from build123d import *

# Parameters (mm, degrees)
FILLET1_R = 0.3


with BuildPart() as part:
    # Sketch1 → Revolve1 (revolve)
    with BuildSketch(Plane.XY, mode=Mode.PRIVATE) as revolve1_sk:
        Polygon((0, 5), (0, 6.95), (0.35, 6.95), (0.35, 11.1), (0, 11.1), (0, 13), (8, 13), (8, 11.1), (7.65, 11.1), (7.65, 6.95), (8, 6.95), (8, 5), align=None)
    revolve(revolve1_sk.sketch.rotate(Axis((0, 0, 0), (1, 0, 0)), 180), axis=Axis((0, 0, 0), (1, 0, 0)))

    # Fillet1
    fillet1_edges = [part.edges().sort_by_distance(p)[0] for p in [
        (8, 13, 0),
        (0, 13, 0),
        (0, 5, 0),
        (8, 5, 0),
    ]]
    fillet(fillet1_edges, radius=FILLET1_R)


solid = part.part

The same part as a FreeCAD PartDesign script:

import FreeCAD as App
import Part
import Sketcher
from FreeCAD import Vector


def edges_at(feature, points):
    """Names of the edges that pass closest to the given points."""
    edges = feature.Shape.Edges
    near = lambda p: min(range(len(edges)), key=lambda i: edges[i].distToShape(Part.Vertex(*p))[0])
    return sorted({f"Edge{near(p) + 1}" for p in points})


def add_polygon(sketch, points):
    """Adds a closed chain of lines whose ends are joined by coincident constraints."""
    first, n = sketch.GeometryCount, len(points)
    for a, b in zip(points, points[1:] + points[:1]):
        sketch.addGeometry(Part.LineSegment(App.Vector(*a, 0), App.Vector(*b, 0)), False)
    for i in range(n):
        sketch.addConstraint(Sketcher.Constraint("Coincident", first + i, 2, first + (i + 1) % n, 1))

doc = App.newDocument("Part")
body = doc.addObject("PartDesign::Body", "Body")

# Sketch on XY plane
sketch1 = body.newObject("Sketcher::SketchObject", "Sketch")
sketch1.AttachmentSupport = (doc.getObject("XY_Plane"), [""])
sketch1.MapMode = "FlatFace"
add_polygon(sketch1, [(0, 6.95), (0, 5), (8, 5), (8, 6.95), (7.65, 6.95), (7.65, 11.1), (8, 11.1), (8, 13), (0, 13), (0, 11.1), (0.35, 11.1), (0.35, 6.95)])  # lines 0-11
sketch1.addConstraint(Sketcher.Constraint("Vertical", 0))
sketch1.addConstraint(Sketcher.Constraint("Horizontal", 1))
sketch1.addConstraint(Sketcher.Constraint("Vertical", 2))
sketch1.addConstraint(Sketcher.Constraint("Horizontal", 3))
sketch1.addConstraint(Sketcher.Constraint("Vertical", 4))
sketch1.addConstraint(Sketcher.Constraint("Horizontal", 5))
sketch1.addConstraint(Sketcher.Constraint("Vertical", 6))
sketch1.addConstraint(Sketcher.Constraint("Horizontal", 7))
sketch1.addConstraint(Sketcher.Constraint("Vertical", 8))
sketch1.addConstraint(Sketcher.Constraint("Horizontal", 9))
sketch1.addConstraint(Sketcher.Constraint("Vertical", 10))
sketch1.addConstraint(Sketcher.Constraint("Horizontal", 11))
sketch1.addConstraint(Sketcher.Constraint("PointOnObject", 0, 2, -2))
sketch1.addConstraint(Sketcher.Constraint("PointOnObject", 7, 2, -2))
sketch1.addConstraint(Sketcher.Constraint("Horizontal", 5, 2, 8, 2))
sketch1.addConstraint(Sketcher.Constraint("Horizontal", 3, 2, 10, 2))
sketch1.addConstraint(Sketcher.Constraint("Vertical", 2, 2, 5, 2))
sketch1.addConstraint(Sketcher.Constraint("Equal", 5, 9))
sketch1.addConstraint(Sketcher.Constraint("DistanceX", 1, 1, 1, 2, 8.0))
sketch1.addConstraint(Sketcher.Constraint("DistanceY", 6, 1, 6, 2, 1.9))
sketch1.addConstraint(Sketcher.Constraint("DistanceY", -1, 1, 0, 2, 5.0))
sketch1.addConstraint(Sketcher.Constraint("DistanceY", -1, 1, 6, 2, 13.0))
sketch1.addConstraint(Sketcher.Constraint("DistanceX", 3, 2, 3, 1, 0.35))
sketch1.addConstraint(Sketcher.Constraint("DistanceY", 0, 2, 0, 1, 1.95))
revolution = body.newObject("PartDesign::Revolution", "Revolution")
revolution.Profile = sketch1
revolution.ReferenceAxis = (sketch1, ["H_Axis"])
revolution.Angle = 360
doc.recompute()

fillet = body.newObject("PartDesign::Fillet", "Fillet")
fillet.Base = (revolution, edges_at(revolution, [
    (8, 13, 0),
    (0, 13, 0),
    (0, 5, 0),
    (8, 5, 0),
]))
fillet.Radius = 0.3

doc.recompute()
